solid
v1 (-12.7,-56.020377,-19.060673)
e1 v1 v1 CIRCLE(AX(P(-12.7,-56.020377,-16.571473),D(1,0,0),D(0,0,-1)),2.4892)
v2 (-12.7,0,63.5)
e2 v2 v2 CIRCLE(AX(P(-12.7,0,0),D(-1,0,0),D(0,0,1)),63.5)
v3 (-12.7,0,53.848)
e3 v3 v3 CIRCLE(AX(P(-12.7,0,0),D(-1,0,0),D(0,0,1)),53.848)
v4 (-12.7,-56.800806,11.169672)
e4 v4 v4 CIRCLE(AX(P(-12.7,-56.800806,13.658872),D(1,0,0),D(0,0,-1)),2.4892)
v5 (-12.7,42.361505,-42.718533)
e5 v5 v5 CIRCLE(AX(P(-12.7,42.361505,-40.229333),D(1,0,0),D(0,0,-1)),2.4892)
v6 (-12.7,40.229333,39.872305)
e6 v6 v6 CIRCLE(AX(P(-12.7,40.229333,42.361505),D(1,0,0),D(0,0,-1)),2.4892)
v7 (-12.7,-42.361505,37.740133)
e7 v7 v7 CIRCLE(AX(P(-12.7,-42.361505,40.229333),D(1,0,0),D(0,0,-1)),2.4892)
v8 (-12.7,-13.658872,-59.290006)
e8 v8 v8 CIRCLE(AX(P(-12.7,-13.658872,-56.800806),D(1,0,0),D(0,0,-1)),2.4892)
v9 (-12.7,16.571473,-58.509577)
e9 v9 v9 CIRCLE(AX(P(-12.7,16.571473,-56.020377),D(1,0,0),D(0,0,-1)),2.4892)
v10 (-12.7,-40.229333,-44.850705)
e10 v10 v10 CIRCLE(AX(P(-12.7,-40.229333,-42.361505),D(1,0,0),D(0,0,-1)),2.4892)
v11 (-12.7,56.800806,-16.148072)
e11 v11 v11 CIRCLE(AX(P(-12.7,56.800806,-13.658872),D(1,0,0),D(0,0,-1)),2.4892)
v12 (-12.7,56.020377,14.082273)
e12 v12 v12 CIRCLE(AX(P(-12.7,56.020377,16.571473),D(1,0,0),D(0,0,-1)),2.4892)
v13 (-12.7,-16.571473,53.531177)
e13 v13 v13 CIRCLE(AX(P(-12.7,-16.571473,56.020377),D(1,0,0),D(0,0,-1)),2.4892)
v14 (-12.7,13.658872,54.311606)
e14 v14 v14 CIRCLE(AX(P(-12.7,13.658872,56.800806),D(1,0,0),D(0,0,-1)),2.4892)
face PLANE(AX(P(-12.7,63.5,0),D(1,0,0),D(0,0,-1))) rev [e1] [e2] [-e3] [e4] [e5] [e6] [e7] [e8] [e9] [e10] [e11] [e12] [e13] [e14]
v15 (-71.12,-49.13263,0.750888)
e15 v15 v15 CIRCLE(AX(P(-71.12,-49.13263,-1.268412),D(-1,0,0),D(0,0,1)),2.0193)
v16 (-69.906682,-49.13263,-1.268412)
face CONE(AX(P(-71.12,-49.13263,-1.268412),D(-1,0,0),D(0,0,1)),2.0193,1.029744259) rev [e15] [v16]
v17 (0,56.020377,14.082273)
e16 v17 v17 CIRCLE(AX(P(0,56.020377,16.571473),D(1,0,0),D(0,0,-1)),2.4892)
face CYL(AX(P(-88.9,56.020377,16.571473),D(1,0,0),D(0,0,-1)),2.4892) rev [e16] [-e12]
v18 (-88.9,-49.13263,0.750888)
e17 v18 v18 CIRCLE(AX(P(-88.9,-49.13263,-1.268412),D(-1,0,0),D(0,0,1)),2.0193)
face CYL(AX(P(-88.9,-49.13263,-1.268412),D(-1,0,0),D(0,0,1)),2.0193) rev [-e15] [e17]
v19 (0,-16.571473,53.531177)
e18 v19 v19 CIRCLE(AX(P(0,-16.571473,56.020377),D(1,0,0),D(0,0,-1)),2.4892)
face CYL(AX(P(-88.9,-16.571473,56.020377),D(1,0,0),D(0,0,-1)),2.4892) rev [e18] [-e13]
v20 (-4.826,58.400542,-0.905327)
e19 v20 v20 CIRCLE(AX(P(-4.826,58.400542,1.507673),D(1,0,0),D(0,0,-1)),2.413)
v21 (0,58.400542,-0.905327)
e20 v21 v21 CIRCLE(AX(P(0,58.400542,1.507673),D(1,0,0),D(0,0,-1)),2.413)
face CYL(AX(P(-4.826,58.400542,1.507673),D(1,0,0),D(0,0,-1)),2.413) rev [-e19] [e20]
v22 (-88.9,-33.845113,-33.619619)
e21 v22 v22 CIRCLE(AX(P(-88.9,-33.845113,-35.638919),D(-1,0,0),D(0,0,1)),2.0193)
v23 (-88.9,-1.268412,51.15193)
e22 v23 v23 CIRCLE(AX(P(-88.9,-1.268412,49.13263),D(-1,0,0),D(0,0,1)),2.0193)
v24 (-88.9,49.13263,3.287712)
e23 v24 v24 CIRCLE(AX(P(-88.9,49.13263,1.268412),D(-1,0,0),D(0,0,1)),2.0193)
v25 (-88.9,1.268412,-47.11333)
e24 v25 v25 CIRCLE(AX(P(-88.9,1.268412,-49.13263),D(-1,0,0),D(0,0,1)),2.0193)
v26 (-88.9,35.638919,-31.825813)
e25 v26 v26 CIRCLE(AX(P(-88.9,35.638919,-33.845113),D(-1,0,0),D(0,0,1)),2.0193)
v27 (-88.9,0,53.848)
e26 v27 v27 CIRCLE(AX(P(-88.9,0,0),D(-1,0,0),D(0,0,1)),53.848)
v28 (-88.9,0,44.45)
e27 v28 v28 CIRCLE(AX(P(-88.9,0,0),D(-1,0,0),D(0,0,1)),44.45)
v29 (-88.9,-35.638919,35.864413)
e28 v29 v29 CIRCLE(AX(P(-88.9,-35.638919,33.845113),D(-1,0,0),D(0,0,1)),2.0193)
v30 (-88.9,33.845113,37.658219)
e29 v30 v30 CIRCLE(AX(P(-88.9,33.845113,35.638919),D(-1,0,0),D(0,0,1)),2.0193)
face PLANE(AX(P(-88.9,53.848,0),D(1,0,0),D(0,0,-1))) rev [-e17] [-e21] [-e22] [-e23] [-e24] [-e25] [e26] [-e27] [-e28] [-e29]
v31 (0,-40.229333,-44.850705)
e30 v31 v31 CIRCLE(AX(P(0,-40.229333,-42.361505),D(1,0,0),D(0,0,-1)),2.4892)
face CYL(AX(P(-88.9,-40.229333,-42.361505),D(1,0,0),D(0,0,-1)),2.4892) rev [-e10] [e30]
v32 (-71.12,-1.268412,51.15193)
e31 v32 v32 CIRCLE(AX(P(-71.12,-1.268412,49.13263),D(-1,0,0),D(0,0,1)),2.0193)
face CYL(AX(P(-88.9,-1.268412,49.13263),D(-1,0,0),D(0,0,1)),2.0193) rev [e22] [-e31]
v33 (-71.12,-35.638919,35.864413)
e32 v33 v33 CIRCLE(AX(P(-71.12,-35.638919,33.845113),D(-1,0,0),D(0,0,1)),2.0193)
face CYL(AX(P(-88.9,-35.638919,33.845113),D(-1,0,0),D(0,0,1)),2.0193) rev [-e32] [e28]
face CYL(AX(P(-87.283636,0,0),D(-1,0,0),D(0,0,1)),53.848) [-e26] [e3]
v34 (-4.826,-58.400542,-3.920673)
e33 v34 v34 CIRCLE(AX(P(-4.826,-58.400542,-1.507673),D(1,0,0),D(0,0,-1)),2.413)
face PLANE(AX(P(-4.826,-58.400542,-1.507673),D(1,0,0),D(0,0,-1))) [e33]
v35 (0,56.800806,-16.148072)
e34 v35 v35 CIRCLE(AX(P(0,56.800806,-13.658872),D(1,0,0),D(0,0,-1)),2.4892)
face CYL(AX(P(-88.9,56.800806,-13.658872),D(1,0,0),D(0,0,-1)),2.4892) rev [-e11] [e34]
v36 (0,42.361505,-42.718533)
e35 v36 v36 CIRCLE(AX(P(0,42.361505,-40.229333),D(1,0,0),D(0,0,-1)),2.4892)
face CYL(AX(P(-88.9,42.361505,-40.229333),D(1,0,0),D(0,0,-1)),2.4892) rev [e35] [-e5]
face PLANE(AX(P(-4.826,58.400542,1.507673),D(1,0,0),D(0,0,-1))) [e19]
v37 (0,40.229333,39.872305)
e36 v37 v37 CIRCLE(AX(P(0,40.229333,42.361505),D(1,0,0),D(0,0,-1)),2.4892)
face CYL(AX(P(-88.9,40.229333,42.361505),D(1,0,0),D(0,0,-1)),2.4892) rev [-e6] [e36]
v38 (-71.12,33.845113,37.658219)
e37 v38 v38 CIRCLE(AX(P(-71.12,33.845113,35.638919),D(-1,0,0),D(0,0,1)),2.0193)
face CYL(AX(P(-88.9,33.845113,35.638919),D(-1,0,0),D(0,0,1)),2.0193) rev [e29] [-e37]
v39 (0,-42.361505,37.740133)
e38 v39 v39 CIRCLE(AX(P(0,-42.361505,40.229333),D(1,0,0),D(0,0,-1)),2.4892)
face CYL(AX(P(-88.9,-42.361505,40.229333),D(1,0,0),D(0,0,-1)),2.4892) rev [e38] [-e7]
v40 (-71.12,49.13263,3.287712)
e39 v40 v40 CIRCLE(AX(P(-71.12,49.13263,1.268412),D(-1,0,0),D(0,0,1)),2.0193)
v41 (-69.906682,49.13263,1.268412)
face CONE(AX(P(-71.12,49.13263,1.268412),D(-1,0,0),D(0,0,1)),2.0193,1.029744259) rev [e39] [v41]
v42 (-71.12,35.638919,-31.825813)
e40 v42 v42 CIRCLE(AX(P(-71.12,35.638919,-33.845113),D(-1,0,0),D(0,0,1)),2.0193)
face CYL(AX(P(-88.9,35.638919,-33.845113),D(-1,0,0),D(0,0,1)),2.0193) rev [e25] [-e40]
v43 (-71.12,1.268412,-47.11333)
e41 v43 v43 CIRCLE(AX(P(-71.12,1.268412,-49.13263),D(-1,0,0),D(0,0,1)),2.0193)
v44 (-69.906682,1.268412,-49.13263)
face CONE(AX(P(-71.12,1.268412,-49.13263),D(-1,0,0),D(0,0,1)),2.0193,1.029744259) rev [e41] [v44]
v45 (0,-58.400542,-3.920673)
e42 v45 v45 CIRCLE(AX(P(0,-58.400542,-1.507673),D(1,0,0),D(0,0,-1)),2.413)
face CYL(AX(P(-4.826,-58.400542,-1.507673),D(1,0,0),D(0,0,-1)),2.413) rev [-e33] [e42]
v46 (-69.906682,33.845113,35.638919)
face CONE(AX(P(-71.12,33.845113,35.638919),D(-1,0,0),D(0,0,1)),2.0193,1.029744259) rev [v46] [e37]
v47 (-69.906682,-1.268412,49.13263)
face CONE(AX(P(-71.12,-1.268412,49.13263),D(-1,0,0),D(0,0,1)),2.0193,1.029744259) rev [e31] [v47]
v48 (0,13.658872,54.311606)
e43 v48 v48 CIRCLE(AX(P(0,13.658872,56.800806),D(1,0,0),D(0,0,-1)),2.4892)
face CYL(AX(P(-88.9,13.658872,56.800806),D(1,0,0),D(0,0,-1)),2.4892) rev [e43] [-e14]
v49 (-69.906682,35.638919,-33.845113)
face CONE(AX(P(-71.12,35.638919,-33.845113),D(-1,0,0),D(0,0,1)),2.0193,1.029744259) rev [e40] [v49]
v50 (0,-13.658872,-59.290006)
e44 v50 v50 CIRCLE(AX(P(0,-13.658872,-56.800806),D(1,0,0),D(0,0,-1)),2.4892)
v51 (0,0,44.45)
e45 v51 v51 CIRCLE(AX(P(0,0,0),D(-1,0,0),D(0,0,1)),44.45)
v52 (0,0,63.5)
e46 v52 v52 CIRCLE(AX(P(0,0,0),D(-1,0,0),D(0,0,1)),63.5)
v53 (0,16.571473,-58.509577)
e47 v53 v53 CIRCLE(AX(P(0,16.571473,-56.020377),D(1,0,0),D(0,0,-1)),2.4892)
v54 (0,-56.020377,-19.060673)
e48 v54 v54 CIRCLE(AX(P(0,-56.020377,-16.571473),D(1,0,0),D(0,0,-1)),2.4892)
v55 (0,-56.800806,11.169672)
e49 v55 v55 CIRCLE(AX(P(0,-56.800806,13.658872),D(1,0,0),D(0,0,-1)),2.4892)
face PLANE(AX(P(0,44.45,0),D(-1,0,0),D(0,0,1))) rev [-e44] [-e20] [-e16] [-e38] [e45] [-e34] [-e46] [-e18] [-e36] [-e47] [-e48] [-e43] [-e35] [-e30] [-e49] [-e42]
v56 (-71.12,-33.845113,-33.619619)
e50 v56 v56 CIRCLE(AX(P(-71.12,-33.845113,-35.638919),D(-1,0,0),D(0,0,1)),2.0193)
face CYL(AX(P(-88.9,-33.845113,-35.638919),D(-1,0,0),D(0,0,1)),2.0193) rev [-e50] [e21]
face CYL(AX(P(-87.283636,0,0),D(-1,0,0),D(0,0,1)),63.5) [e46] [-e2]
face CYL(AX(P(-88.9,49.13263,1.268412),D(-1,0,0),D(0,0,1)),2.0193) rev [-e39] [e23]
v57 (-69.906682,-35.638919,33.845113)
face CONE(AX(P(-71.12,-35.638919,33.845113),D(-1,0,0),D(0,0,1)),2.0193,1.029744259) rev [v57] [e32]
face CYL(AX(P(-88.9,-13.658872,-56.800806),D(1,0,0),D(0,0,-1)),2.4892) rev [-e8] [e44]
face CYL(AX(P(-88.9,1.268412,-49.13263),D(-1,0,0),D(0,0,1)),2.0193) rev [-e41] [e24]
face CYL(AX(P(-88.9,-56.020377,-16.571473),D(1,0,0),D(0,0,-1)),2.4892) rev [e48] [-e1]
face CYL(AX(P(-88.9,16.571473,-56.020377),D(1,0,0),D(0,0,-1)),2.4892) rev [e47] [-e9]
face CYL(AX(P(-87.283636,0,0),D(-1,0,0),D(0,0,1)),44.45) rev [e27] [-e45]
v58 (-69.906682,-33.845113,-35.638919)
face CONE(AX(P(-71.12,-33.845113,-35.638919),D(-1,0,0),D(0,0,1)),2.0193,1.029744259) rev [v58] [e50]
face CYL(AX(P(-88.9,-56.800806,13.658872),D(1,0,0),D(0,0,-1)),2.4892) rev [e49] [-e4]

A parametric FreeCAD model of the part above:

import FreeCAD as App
import Part
import Sketcher

V = App.Vector
Q = App.Units.Quantity


def add_polygon(sketch, points):
    """Adds a closed chain of lines whose ends are joined by coincident constraints."""
    first, n = sketch.GeometryCount, len(points)
    for a, b in zip(points, points[1:] + points[:1]):
        sketch.addGeometry(Part.LineSegment(App.Vector(*a, 0), App.Vector(*b, 0)), False)
    for i in range(n):
        sketch.addConstraint(Sketcher.Constraint("Coincident", first + i, 2, first + (i + 1) % n, 1))

doc = App.newDocument("Part")
body = doc.addObject("PartDesign::Body", "Body")

sketch1 = doc.addObject("Sketcher::SketchObject", "Sketch")
body.addObject(sketch1)
sketch1.AttachmentSupport = (doc.XY_Plane, [""])
sketch1.MapMode = "FlatFace"
add_polygon(sketch1, [(-89, 54), (-89, 44), (0, 44), (0, 64), (-13, 64), (-13, 54)])
sketch1.addConstraint([
    Sketcher.Constraint("Vertical", 0),
    Sketcher.Constraint("Horizontal", 1),
    Sketcher.Constraint("Vertical", 2),
    Sketcher.Constraint("Horizontal", 3),
    Sketcher.Constraint("Vertical", 4),
    Sketcher.Constraint("Horizontal", 5),
    Sketcher.Constraint("PointOnObject", 1, 2, -2),
    Sketcher.Constraint("DistanceX", 5, 2, 5, 1, Q("3 in")),
    Sketcher.Constraint("DistanceX", 1, 1, 1, 2, Q("3.5 in")),
    Sketcher.Constraint("DistanceY", 0, 2, 0, 1, Q("0.37 in")),
    Sketcher.Constraint("DistanceY", 2, 1, 2, 2, Q("0.75 in")),
    Sketcher.Constraint("DistanceY", -1, 1, 2, 2, Q("2.5 in")),
])
revolution = doc.addObject("PartDesign::Revolution", "Revolution")
body.addObject(revolution)
revolution.Profile = sketch1
revolution.ReferenceAxis = (sketch1, ["H_Axis"])
revolution.Angle = 360

sketch2 = doc.addObject("Sketcher::SketchObject", "Sketch001")
body.addObject(sketch2)
sketch2.AttachmentSupport = (doc.YZ_Plane, [""])
sketch2.MapMode = "FlatFace"
sketch2.addGeometry([
    Part.Circle(V(56, 16.6, 0), V(0, 0, 1), 2.5),
    Part.Circle(V(56.8, -13.7, 0), V(0, 0, 1), 2.5),
    Part.Circle(V(42.4, -40.2, 0), V(0, 0, 1), 2.5),
    Part.Circle(V(16.6, -56, 0), V(0, 0, 1), 2.5),
    Part.Circle(V(-13.7, -56.8, 0), V(0, 0, 1), 2.5),
    Part.Circle(V(-40.2, -42.4, 0), V(0, 0, 1), 2.5),
    Part.Circle(V(-56, -16.6, 0), V(0, 0, 1), 2.5),
    Part.Circle(V(-56.8, 13.7, 0), V(0, 0, 1), 2.5),
    Part.Circle(V(-42.4, 40.2, 0), V(0, 0, 1), 2.5),
    Part.Circle(V(-16.6, 56, 0), V(0, 0, 1), 2.5),
    Part.Circle(V(13.7, 56.8, 0), V(0, 0, 1), 2.5),
    Part.Circle(V(40.2, 42.4, 0), V(0, 0, 1), 2.5),
], False)
sketch2.addConstraint([
    Sketcher.Constraint("Equal", 0, 1),
    Sketcher.Constraint("Equal", 1, 2),
    Sketcher.Constraint("Equal", 2, 3),
    Sketcher.Constraint("Equal", 3, 4),
    Sketcher.Constraint("Equal", 4, 5),
    Sketcher.Constraint("Equal", 5, 6),
    Sketcher.Constraint("Equal", 6, 7),
    Sketcher.Constraint("Equal", 7, 8),
    Sketcher.Constraint("Equal", 8, 9),
    Sketcher.Constraint("Equal", 9, 10),
    Sketcher.Constraint("Equal", 10, 11),
    Sketcher.Constraint("Symmetric", 0, 3, 6, 3, -1, 1),
    Sketcher.Constraint("Symmetric", 1, 3, 7, 3, -1, 1),
    Sketcher.Constraint("Symmetric", 2, 3, 8, 3, -1, 1),
    Sketcher.Constraint("Symmetric", 3, 3, 9, 3, -1, 1),
    Sketcher.Constraint("Symmetric", 4, 3, 10, 3, -1, 1),
    Sketcher.Constraint("Symmetric", 5, 3, 11, 3, -1, 1),
    Sketcher.Constraint("Diameter", 0, Q("0.196 in")),
    Sketcher.Constraint("DistanceX", 2, 3, 1, 3, Q("14.439301 mm")),
    Sketcher.Constraint("DistanceY", 4, 3, 5, 3, Q("14.439301 mm")),
    Sketcher.Constraint("DistanceY", 6, 3, 1, 3, Q("2.912601 mm")),
    Sketcher.Constraint("DistanceX", 0, 3, 1, 3, Q("0.780429 mm")),
    Sketcher.Constraint("DistanceY", 2, 3, 1, 3, Q("26.570461 mm")),
    Sketcher.Constraint("DistanceY", 3, 3, 0, 3, Q("72.59185 mm")),
    Sketcher.Constraint("DistanceY", 4, 3, 3, 3, Q("0.780429 mm")),
    Sketcher.Constraint("DistanceX", 4, 3, 1, 3, Q("70.459679 mm")),
    Sketcher.Constraint("DistanceX", 5, 3, 4, 3, Q("26.570461 mm")),
    Sketcher.Constraint("DistanceY", 5, 3, 2, 3, Q("2.132172 mm")),
    Sketcher.Constraint("DistanceX", 6, 3, 3, 3, Q("72.59185 mm")),
    Sketcher.Constraint("DistanceX", 7, 3, 2, 3, Q("99.162312 mm")),
])
pocket1 = doc.addObject("PartDesign::Pocket", "Pocket")
body.addObject(pocket1)
pocket1.Profile = sketch2
pocket1.Type = "ThroughAll"

sketch3 = doc.addObject("Sketcher::SketchObject", "Sketch002")
body.addObject(sketch3)
sketch3.AttachmentSupport = (doc.YZ_Plane, [""])
sketch3.MapMode = "FlatFace"
sketch3.AttachmentOffset = App.Placement(V(0, 0, -3.5 * 25.4), App.Rotation())
sketch3.addGeometry([
    Part.Circle(V(35.6, -33.8, 0), V(0, 0, 1), 2),
    Part.Circle(V(49.1, 1.3, 0), V(0, 0, 1), 2),
    Part.Circle(V(33.8, 35.6, 0), V(0, 0, 1), 2),
    Part.Circle(V(-1.3, 49.1, 0), V(0, 0, 1), 2),
    Part.Circle(V(-35.6, 33.8, 0), V(0, 0, 1), 2),
    Part.Circle(V(-49.1, -1.3, 0), V(0, 0, 1), 2),
    Part.Circle(V(-33.8, -35.6, 0), V(0, 0, 1), 2),
    Part.Circle(V(1.3, -49.1, 0), V(0, 0, 1), 2),
], False)
sketch3.addConstraint([
    Sketcher.Constraint("Equal", 0, 1),
    Sketcher.Constraint("Equal", 1, 2),
    Sketcher.Constraint("Equal", 2, 3),
    Sketcher.Constraint("Equal", 3, 4),
    Sketcher.Constraint("Equal", 4, 5),
    Sketcher.Constraint("Equal", 5, 6),
    Sketcher.Constraint("Equal", 6, 7),
    Sketcher.Constraint("Symmetric", 0, 3, 4, 3, -1, 1),
    Sketcher.Constraint("Symmetric", 1, 3, 5, 3, -1, 1),
    Sketcher.Constraint("Symmetric", 2, 3, 6, 3, -1, 1),
    Sketcher.Constraint("Symmetric", 3, 3, 7, 3, -1, 1),
    Sketcher.Constraint("Diameter", 0, Q("0.159 in")),
    Sketcher.Constraint("DistanceY", 1, 3, 4, 3, Q("32.576701 mm")),
    Sketcher.Constraint("DistanceX", 6, 3, 3, 3, Q("32.576701 mm")),
    Sketcher.Constraint("DistanceX", -1, 1, 0, 3, Q("35.638919 mm")),
    Sketcher.Constraint("DistanceX", -1, 1, 1, 3, Q("49.13263 mm")),
    Sketcher.Constraint("DistanceY", -1, 1, 1, 3, Q("1.268412 mm")),
    Sketcher.Constraint("DistanceY", -1, 1, 2, 3, Q("35.638919 mm")),
    Sketcher.Constraint("DistanceX", 3, 3, -1, 1, Q("1.268412 mm")),
    Sketcher.Constraint("DistanceY", -1, 1, 3, 3, Q("49.13263 mm")),
])
doc.recompute()
hole = doc.addObject("PartDesign::Hole", "Hole")
body.addObject(hole)
hole.Profile = sketch3
hole.ThreadType = "None"
hole.Diameter = Q("0.159 in")
hole.DepthType = "Dimension"
hole.Depth = Q("0.7 in")
hole.DrillPoint = "Angled"
hole.DrillPointAngle = 118
hole.Reversed = True

sketch4 = doc.addObject("Sketcher::SketchObject", "Sketch003")
body.addObject(sketch4)
sketch4.AttachmentSupport = (doc.YZ_Plane, [""])
sketch4.MapMode = "FlatFace"
sketch4.addGeometry([
    Part.Circle(V(58.4, 1.5, 0), V(0, 0, 1), 2.4),
    Part.Circle(V(-58.4, -1.5, 0), V(0, 0, 1), 2.4),
], False)
sketch4.addConstraint([
    Sketcher.Constraint("Equal", 0, 1),
    Sketcher.Constraint("Symmetric", 0, 3, 1, 3, -1, 1),
    Sketcher.Constraint("Diameter", 0, Q("0.19 in")),
    Sketcher.Constraint("DistanceX", -1, 1, 0, 3, Q("58.400542 mm")),
    Sketcher.Constraint("DistanceY", -1, 1, 0, 3, Q("1.507673 mm")),
])
pocket2 = doc.addObject("PartDesign::Pocket", "Pocket001")
body.addObject(pocket2)
pocket2.Profile = sketch4
pocket2.Length = Q("0.19 in")

doc.recompute()
